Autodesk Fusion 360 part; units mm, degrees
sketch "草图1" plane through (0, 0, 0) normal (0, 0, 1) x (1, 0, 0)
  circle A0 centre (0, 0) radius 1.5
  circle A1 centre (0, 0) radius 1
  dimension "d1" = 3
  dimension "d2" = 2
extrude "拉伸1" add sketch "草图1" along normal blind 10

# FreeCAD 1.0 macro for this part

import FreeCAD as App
import Part
import Sketcher

V = App.Vector

doc = App.newDocument("Part")
body = doc.addObject("PartDesign::Body", "Body")

# Sketch on XY plane
sketch1 = doc.addObject("Sketcher::SketchObject", "Sketch")
body.addObject(sketch1)
sketch1.AttachmentSupport = (doc.XY_Plane, [""])
sketch1.MapMode = "FlatFace"
sketch1.addGeometry([
    Part.Circle(V(0, 0, 0), V(0, 0, 1), 1.5),
    Part.Circle(V(0, 0, 0), V(0, 0, 1), 1),
], False)
sketch1.addConstraint([
    Sketcher.Constraint("Coincident", 0, 3, -1, 1),
    Sketcher.Constraint("Coincident", 1, 3, -1, 1),
    Sketcher.Constraint("Diameter", 0, 3.0),
    Sketcher.Constraint("Diameter", 1, 2.0),
])
pad1 = doc.addObject("PartDesign::Pad", "Pad")
body.addObject(pad1)
pad1.Profile = sketch1
pad1.Length = 10

doc.recompute()
